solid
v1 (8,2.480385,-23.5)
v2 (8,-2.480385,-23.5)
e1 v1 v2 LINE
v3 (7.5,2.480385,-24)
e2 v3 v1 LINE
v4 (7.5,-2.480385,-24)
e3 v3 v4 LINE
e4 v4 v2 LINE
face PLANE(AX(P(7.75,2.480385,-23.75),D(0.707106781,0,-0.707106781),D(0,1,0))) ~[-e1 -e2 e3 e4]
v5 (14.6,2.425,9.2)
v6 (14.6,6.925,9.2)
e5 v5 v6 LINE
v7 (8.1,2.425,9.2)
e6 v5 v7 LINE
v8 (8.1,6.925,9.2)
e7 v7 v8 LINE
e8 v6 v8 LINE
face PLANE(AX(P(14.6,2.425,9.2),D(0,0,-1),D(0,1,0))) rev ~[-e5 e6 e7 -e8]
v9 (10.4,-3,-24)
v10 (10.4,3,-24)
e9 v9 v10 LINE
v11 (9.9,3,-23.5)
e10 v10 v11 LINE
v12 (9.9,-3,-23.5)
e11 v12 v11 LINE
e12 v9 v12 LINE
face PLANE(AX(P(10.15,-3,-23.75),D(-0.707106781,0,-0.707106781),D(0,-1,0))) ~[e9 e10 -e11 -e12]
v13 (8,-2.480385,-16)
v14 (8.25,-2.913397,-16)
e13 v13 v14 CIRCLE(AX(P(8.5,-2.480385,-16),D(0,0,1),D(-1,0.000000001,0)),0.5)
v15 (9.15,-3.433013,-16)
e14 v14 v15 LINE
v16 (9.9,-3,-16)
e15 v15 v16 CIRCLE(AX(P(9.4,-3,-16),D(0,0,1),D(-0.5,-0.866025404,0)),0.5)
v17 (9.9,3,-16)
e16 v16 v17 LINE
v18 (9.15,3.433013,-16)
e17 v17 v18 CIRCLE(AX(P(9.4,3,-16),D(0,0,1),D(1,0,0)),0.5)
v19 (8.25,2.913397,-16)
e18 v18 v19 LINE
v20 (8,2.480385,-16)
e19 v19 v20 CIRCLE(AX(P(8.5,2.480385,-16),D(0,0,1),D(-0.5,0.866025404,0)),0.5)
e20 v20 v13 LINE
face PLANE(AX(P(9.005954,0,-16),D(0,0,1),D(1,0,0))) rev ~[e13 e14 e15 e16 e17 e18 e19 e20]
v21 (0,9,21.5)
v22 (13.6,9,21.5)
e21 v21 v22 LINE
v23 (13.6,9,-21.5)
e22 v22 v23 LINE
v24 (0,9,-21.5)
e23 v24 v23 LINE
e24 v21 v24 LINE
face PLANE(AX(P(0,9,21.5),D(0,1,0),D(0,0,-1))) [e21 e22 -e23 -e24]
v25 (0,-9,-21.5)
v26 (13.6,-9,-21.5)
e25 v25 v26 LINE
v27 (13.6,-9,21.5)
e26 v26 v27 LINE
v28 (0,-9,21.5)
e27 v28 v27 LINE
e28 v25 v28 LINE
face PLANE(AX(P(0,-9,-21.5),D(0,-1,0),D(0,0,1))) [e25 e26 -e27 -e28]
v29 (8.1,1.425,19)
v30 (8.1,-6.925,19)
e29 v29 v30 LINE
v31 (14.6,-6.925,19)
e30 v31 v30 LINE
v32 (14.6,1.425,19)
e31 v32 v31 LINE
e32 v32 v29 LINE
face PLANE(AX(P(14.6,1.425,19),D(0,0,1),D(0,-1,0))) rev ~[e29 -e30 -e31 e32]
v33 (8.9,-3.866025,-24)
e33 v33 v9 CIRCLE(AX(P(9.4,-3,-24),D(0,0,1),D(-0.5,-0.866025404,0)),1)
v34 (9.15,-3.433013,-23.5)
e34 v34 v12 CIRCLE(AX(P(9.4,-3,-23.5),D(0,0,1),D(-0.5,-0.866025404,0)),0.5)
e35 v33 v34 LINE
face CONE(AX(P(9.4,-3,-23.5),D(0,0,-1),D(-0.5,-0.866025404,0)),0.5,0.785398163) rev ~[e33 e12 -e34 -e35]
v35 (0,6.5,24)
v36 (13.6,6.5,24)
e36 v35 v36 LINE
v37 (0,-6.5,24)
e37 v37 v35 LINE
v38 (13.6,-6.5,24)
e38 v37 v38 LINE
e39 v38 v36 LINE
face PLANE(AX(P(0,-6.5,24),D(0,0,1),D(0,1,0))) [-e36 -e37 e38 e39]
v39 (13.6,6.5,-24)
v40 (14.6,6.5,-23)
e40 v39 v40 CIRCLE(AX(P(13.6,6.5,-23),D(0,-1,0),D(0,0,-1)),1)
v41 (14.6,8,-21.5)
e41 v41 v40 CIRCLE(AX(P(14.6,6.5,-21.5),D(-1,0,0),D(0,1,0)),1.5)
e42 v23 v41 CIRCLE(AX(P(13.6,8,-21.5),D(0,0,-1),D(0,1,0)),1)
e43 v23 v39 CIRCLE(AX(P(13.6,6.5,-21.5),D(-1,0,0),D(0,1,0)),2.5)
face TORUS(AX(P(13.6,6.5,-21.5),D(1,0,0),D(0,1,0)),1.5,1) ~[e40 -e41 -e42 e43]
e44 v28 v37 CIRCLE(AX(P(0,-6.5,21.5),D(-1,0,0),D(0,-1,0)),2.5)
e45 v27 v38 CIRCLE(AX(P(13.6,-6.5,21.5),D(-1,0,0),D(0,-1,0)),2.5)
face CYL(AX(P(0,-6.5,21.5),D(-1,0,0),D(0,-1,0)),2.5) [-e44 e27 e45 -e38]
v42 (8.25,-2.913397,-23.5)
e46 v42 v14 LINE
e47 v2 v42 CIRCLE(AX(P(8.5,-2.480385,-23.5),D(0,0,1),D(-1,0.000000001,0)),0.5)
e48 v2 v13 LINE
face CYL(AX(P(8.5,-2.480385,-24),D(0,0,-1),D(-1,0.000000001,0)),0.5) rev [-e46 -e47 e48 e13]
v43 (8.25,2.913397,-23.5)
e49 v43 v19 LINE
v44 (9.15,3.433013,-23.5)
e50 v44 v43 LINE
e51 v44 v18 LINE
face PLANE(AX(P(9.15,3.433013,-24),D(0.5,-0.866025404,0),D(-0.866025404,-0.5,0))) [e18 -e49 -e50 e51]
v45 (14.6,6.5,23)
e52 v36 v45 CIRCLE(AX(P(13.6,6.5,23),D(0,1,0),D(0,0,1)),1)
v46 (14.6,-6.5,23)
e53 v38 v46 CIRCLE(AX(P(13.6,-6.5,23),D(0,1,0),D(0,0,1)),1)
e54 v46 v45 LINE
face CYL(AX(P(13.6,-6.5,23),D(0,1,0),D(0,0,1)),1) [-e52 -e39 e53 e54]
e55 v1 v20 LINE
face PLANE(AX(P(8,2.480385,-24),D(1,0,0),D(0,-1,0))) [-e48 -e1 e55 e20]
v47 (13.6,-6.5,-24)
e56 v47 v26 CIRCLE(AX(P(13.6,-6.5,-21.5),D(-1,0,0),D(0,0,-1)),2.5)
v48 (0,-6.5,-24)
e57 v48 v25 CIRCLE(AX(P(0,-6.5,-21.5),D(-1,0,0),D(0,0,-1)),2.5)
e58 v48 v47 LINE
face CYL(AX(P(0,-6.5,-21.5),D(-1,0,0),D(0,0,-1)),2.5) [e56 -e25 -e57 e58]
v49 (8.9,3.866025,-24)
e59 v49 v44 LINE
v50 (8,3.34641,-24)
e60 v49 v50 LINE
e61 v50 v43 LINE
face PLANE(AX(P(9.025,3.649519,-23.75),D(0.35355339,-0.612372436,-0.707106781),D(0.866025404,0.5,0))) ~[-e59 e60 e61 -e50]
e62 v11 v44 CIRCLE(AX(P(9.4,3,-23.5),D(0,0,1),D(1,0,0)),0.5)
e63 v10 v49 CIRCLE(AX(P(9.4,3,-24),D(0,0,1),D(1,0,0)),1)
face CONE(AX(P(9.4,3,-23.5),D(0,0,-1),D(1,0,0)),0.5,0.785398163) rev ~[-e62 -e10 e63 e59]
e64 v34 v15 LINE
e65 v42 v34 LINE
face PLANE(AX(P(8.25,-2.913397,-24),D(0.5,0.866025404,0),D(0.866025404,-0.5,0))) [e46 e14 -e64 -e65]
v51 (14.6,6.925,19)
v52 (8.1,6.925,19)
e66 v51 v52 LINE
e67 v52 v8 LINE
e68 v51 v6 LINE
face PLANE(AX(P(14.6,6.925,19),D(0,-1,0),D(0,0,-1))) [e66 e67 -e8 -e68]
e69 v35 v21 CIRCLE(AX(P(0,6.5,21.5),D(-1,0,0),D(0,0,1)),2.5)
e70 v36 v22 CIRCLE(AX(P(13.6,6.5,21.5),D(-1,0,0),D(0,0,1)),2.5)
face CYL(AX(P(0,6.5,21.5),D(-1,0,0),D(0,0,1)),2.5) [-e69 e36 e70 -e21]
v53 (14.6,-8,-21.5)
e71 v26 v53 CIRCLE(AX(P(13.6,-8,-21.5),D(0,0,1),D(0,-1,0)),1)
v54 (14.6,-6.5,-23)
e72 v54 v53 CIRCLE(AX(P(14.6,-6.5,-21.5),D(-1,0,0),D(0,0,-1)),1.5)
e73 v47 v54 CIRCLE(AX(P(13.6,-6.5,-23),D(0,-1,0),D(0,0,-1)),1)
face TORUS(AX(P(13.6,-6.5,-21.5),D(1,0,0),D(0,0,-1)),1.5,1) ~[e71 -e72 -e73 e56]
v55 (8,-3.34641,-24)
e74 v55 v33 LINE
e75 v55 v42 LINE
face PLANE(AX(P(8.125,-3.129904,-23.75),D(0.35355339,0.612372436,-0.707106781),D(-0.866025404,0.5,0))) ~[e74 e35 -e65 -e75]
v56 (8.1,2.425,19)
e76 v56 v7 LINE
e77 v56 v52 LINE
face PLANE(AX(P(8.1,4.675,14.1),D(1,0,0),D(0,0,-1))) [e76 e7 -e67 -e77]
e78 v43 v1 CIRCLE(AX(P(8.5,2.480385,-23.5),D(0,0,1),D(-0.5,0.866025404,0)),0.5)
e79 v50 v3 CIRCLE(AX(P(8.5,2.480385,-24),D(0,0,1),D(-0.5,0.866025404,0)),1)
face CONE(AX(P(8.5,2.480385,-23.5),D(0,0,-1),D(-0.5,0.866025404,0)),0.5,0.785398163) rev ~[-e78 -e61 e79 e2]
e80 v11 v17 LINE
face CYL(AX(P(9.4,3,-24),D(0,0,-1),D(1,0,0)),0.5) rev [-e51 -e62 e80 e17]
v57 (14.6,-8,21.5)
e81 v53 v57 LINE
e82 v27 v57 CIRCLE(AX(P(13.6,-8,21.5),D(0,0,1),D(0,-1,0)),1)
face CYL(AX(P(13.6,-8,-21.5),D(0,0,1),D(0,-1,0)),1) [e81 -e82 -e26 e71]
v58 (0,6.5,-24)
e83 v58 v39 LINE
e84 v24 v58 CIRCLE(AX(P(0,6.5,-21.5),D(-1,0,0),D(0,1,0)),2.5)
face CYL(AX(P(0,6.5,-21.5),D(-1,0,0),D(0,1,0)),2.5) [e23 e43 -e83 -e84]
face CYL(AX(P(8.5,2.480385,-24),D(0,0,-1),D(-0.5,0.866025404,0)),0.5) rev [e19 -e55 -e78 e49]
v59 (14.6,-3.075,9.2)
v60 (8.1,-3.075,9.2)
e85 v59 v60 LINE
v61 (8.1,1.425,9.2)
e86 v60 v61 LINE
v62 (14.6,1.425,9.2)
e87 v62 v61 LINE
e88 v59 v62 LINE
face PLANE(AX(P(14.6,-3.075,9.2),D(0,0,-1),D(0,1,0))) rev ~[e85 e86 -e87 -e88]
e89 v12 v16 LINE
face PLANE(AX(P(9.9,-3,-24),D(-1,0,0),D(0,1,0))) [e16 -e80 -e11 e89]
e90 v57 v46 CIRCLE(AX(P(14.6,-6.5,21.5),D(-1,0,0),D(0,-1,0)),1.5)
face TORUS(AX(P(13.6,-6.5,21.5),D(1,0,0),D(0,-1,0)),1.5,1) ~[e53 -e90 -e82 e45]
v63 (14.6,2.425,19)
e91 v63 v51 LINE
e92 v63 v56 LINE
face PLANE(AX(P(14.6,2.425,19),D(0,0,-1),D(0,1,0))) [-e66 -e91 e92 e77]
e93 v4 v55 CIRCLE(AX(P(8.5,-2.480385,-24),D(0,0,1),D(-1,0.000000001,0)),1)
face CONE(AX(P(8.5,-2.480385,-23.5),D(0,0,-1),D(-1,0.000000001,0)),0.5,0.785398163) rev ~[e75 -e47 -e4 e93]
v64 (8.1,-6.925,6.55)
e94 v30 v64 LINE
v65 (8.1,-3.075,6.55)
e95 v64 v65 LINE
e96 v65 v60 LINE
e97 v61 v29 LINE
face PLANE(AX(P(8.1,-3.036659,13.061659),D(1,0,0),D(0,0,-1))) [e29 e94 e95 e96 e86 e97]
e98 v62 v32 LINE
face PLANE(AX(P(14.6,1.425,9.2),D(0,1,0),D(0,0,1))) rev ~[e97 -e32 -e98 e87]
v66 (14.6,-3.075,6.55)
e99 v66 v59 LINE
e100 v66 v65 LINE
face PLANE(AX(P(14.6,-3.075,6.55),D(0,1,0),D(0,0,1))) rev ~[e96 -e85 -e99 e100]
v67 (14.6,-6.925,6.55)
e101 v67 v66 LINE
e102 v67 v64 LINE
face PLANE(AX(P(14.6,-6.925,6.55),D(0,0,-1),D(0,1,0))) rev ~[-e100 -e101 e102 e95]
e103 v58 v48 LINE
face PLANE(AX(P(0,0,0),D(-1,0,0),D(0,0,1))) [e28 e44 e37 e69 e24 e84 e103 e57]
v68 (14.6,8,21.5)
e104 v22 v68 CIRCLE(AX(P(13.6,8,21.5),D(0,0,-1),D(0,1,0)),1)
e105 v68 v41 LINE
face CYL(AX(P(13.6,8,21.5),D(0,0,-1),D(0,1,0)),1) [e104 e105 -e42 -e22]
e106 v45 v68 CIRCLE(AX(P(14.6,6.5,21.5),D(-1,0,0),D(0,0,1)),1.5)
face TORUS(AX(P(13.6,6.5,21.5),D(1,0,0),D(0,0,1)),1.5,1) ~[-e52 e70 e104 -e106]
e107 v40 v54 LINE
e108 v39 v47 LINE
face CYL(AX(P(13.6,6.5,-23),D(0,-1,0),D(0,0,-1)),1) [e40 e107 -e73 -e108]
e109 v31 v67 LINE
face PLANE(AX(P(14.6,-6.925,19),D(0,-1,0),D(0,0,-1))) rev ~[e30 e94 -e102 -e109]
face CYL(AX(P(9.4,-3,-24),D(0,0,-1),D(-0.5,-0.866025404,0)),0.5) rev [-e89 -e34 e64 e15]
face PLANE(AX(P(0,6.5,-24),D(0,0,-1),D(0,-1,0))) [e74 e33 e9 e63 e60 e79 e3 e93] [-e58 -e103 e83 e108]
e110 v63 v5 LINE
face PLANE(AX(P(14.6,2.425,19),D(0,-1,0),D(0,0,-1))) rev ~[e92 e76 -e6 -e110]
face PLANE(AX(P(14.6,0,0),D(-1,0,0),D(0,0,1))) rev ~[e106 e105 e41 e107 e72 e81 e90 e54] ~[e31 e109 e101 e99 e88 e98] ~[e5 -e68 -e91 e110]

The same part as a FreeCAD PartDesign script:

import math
import FreeCAD as App
import Part
import Sketcher

V = App.Vector
Q = App.Units.Quantity


def edges_at(feature, points):
    """Names of the edges that pass closest to the given points."""
    edges = feature.Shape.Edges
    near = lambda p: min(range(len(edges)), key=lambda i: edges[i].distToShape(Part.Vertex(*p))[0])
    return sorted({f"Edge{near(p) + 1}" for p in points})

doc = App.newDocument("Part")
body = doc.addObject("PartDesign::Body", "Body")

sketch1 = body.newObject("Sketcher::SketchObject", "Sketch")
sketch1.AttachmentSupport = (doc.getObject("YZ_Plane"), [""])
sketch1.MapMode = "FlatFace"
sketch1.addGeometry([
    Part.LineSegment(V(9, -21.5, 0), V(9, 21.5, 0)),
    Part.ArcOfCircle(Part.Circle(V(6.5, 21.5, 0), V(0, 0, 1), 2.5), math.radians(0), math.radians(90)),
    Part.LineSegment(V(6.5, 24, 0), V(-6.5, 24, 0)),
    Part.ArcOfCircle(Part.Circle(V(-6.5, 21.5, 0), V(0, 0, 1), 2.5), math.radians(90), math.radians(180)),
    Part.LineSegment(V(-9, 21.5, 0), V(-9, -21.5, 0)),
    Part.ArcOfCircle(Part.Circle(V(-6.5, -21.5, 0), V(0, 0, 1), 2.5), math.radians(180), math.radians(270)),
    Part.LineSegment(V(-6.5, -24, 0), V(6.5, -24, 0)),
    Part.ArcOfCircle(Part.Circle(V(6.5, -21.5, 0), V(0, 0, 1), 2.5), math.radians(-90), math.radians(0)),
], False)
sketch1.addConstraint([
    Sketcher.Constraint("Tangent", 0, 2, 1, 1),
    Sketcher.Constraint("Tangent", 1, 2, 2, 1),
    Sketcher.Constraint("Tangent", 2, 2, 3, 1),
    Sketcher.Constraint("Tangent", 3, 2, 4, 1),
    Sketcher.Constraint("Tangent", 4, 2, 5, 1),
    Sketcher.Constraint("Tangent", 5, 2, 6, 1),
    Sketcher.Constraint("Tangent", 6, 2, 7, 1),
    Sketcher.Constraint("Tangent", 7, 2, 0, 1),
    Sketcher.Constraint("Vertical", 0),
    Sketcher.Constraint("Horizontal", 2),
    Sketcher.Constraint("Vertical", 4),
    Sketcher.Constraint("Horizontal", 6),
    Sketcher.Constraint("Equal", 1, 3),
    Sketcher.Constraint("Equal", 3, 5),
    Sketcher.Constraint("Equal", 5, 7),
    Sketcher.Constraint("Symmetric", 1, 3, 5, 3, -1, 1),
    Sketcher.Constraint("Radius", 1, 2.5),
    Sketcher.Constraint("DistanceX", 2, 2, 2, 1, 13.0),
    Sketcher.Constraint("DistanceY", 0, 1, 0, 2, 43.0),
])
pad1 = body.newObject("PartDesign::Pad", "Pad")
pad1.Profile = sketch1
pad1.Length = 14.6
doc.recompute()

fillet = body.newObject("PartDesign::Fillet", "Fillet")
fillet.Base = (pad1, edges_at(pad1, [
    (14.6, 8.268, 23.268),
    (14.6, 0, 24),
    (14.6, -8.268, 23.268),
    (14.6, -9, 0),
    (14.6, -8.268, -23.268),
    (14.6, 0, -24),
    (14.6, 8.268, -23.268),
    (14.6, 9, 0),
]))
fillet.Radius = 1

sketch2 = body.newObject("Sketcher::SketchObject", "Sketch001")
sketch2.AttachmentSupport = (doc.getObject("XY_Plane"), [""])
sketch2.MapMode = "FlatFace"
sketch2.AttachmentOffset = App.Placement(V(0, 0, -24), App.Rotation())
sketch2.addGeometry([
    Part.LineSegment(V(8.2, 2.9, 0), V(9.2, 3.4, 0)),
    Part.ArcOfCircle(Part.Circle(V(9.4, 3, 0), V(0, 0, 1), 0.5), math.radians(0), math.radians(120)),
    Part.LineSegment(V(9.9, 3, 0), V(9.9, -3, 0)),
    Part.ArcOfCircle(Part.Circle(V(9.4, -3, 0), V(0, 0, 1), 0.5), math.radians(-120), math.radians(0)),
    Part.LineSegment(V(9.2, -3.4, 0), V(8.2, -2.9, 0)),
    Part.ArcOfCircle(Part.Circle(V(8.5, -2.5, 0), V(0, 0, 1), 0.5), math.radians(180), math.radians(240)),
    Part.LineSegment(V(8, -2.5, 0), V(8, 2.5, 0)),
    Part.ArcOfCircle(Part.Circle(V(8.5, 2.5, 0), V(0, 0, 1), 0.5), math.radians(120), math.radians(180)),
], False)
sketch2.addConstraint([
    Sketcher.Constraint("Tangent", 0, 2, 1, 2),
    Sketcher.Constraint("Tangent", 1, 1, 2, 1),
    Sketcher.Constraint("Tangent", 2, 2, 3, 2),
    Sketcher.Constraint("Tangent", 3, 1, 4, 1),
    Sketcher.Constraint("Tangent", 4, 2, 5, 2),
    Sketcher.Constraint("Tangent", 5, 1, 6, 1),
    Sketcher.Constraint("Tangent", 6, 2, 7, 2),
    Sketcher.Constraint("Tangent", 7, 1, 0, 1),
    Sketcher.Constraint("Vertical", 2),
    Sketcher.Constraint("Vertical", 6),
    Sketcher.Constraint("Equal", 1, 3),
    Sketcher.Constraint("Equal", 3, 5),
    Sketcher.Constraint("Equal", 5, 7),
    Sketcher.Constraint("Symmetric", 0, 2, 3, 1, -1),
    Sketcher.Constraint("Radius", 1, 0.5),
    Sketcher.Constraint("DistanceY", 2, 2, 2, 1, 6.0),
    Sketcher.Constraint("Angle", 0, Q("30 deg")),
    Sketcher.Constraint("DistanceX", -1, 1, 5, 1, 8.0),
    Sketcher.Constraint("DistanceX", -1, 1, 1, 3, 9.4),
])
pocket1 = body.newObject("PartDesign::Pocket", "Pocket")
pocket1.Profile = sketch2
pocket1.Length = 8
pocket1.Reversed = True
doc.recompute()

chamfer = body.newObject("PartDesign::Chamfer", "Chamfer")
chamfer.Base = (pocket1, edges_at(pocket1, [
    (8.067, -2.73, -24),
    (8, 0, -24),
    (8.067, 2.73, -24),
    (8.7, 3.173, -24),
    (9.65, 3.433, -24),
    (9.9, 0, -24),
    (9.65, -3.433, -24),
    (8.7, -3.173, -24),
]))
chamfer.Size = 0.5

sketch3 = body.newObject("Sketcher::SketchObject", "Sketch002")
sketch3.AttachmentSupport = (doc.getObject("YZ_Plane"), [""])
sketch3.MapMode = "FlatFace"
sketch3.AttachmentOffset = App.Placement(V(0, 0, 14.6), App.Rotation())
sketch3.addGeometry([
    Part.LineSegment(V(1.4, 19, 0), V(-6.9, 19, 0)),
    Part.LineSegment(V(-6.9, 19, 0), V(-6.9, 6.5, 0)),
    Part.LineSegment(V(-6.9, 6.5, 0), V(-3.1, 6.5, 0)),
    Part.LineSegment(V(-3.1, 6.5, 0), V(-3.1, 9.2, 0)),
    Part.LineSegment(V(-3.1, 9.2, 0), V(1.4, 9.2, 0)),
    Part.LineSegment(V(1.4, 9.2, 0), V(1.4, 19, 0)),
    Part.LineSegment(V(6.9, 19, 0), V(2.4, 19, 0)),
    Part.LineSegment(V(2.4, 19, 0), V(2.4, 9.2, 0)),
    Part.LineSegment(V(2.4, 9.2, 0), V(6.9, 9.2, 0)),
    Part.LineSegment(V(6.9, 9.2, 0), V(6.9, 19, 0)),
], False)
sketch3.addConstraint([
    Sketcher.Constraint("Coincident", 0, 2, 1, 1),
    Sketcher.Constraint("Coincident", 1, 2, 2, 1),
    Sketcher.Constraint("Coincident", 2, 2, 3, 1),
    Sketcher.Constraint("Coincident", 3, 2, 4, 1),
    Sketcher.Constraint("Coincident", 4, 2, 5, 1),
    Sketcher.Constraint("Coincident", 5, 2, 0, 1),
    Sketcher.Constraint("Coincident", 6, 2, 7, 1),
    Sketcher.Constraint("Coincident", 7, 2, 8, 1),
    Sketcher.Constraint("Coincident", 8, 2, 9, 1),
    Sketcher.Constraint("Coincident", 9, 2, 6, 1),
    Sketcher.Constraint("Horizontal", 0),
    Sketcher.Constraint("Vertical", 1),
    Sketcher.Constraint("Horizontal", 2),
    Sketcher.Constraint("Vertical", 3),
    Sketcher.Constraint("Horizontal", 4),
    Sketcher.Constraint("Vertical", 5),
    Sketcher.Constraint("Horizontal", 6),
    Sketcher.Constraint("Vertical", 7),
    Sketcher.Constraint("Horizontal", 8),
    Sketcher.Constraint("Vertical", 9),
    Sketcher.Constraint("Symmetric", 0, 2, 9, 2, -2),
    Sketcher.Constraint("Horizontal", 4, 2, 7, 2),
    Sketcher.Constraint("Equal", 4, 6),
    Sketcher.Constraint("DistanceX", 4, 1, 4, 2, 4.5),
    Sketcher.Constraint("DistanceY", 5, 1, 5, 2, 9.8),
    Sketcher.Constraint("DistanceY", -1, 1, 0, 2, 19.0),
    Sketcher.Constraint("DistanceX", 5, 2, 6, 2, 1.0),
    Sketcher.Constraint("DistanceX", 0, 2, 0, 1, 8.35),
    Sketcher.Constraint("DistanceY", 1, 2, 1, 1, 12.45),
])
pocket2 = body.newObject("PartDesign::Pocket", "Pocket001")
pocket2.Profile = sketch3
pocket2.Length = 6.5

doc.recompute()
